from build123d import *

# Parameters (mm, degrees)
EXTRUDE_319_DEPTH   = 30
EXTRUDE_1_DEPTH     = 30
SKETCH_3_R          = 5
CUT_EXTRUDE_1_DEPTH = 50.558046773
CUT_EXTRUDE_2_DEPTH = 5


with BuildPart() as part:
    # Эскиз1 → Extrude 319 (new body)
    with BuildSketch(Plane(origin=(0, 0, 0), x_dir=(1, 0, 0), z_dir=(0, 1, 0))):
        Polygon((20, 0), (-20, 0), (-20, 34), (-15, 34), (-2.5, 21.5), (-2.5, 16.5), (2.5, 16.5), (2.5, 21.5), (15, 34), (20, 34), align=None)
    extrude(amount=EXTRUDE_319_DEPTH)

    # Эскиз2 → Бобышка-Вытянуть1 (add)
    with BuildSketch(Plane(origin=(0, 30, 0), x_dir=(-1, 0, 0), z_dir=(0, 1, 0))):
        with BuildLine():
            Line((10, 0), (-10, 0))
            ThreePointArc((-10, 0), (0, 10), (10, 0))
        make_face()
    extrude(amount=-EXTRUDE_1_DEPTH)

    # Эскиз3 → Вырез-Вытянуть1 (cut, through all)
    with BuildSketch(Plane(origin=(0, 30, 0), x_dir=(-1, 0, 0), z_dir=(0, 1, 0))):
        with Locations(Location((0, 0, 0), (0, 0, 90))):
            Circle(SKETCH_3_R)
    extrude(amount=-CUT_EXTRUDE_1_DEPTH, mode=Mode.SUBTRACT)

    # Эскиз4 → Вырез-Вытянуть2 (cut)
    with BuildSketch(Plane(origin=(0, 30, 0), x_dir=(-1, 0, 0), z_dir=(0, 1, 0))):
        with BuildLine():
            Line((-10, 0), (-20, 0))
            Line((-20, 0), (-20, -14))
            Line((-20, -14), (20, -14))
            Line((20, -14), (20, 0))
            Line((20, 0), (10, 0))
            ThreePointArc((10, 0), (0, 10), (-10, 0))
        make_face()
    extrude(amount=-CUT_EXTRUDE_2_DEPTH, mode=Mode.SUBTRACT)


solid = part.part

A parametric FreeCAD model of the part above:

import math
import FreeCAD as App
import Part
import Sketcher

V = App.Vector
Q = App.Units.Quantity


def add_polygon(sketch, points):
    """Adds a closed chain of lines whose ends are joined by coincident constraints."""
    first, n = sketch.GeometryCount, len(points)
    for a, b in zip(points, points[1:] + points[:1]):
        sketch.addGeometry(Part.LineSegment(App.Vector(*a, 0), App.Vector(*b, 0)), False)
    for i in range(n):
        sketch.addConstraint(Sketcher.Constraint("Coincident", first + i, 2, first + (i + 1) % n, 1))

doc = App.newDocument("Part")
params = doc.addObject("Spreadsheet::Sheet", "Params")
for row, (alias, value) in enumerate([
    ("sketch1_width", "40 mm"),
    ("sketch1_width2", "5 mm"),
    ("sketch1_height", "34 mm"),
    ("pad1_length", "30 mm"),
    ("sketch2_radius", "10 mm"),
    ("pad2_length", "30 mm"),
    ("sketch3_diameter", "10 mm"),
    ("sketch4_radius", "10 mm"),
    ("sketch4_width", "10 mm"),
    ("sketch4_height", "14 mm"),
    ("pocket2_length", "5 mm"),
], start=1):
    params.set(f"A{row}", alias)
    params.set(f"B{row}", "=" + value)
    params.setAlias(f"B{row}", alias)

body = doc.addObject("PartDesign::Body", "Body")

# Sketch on XZ plane
sketch1 = body.newObject("Sketcher::SketchObject", "Sketch")
sketch1.AttachmentSupport = (doc.getObject("XZ_Plane"), [""])
sketch1.MapMode = "FlatFace"
add_polygon(sketch1, [(-20, 0), (20, 0), (20, -34), (15, -34), (2.5, -21.5), (2.5, -16.5), (-2.5, -16.5), (-2.5, -21.5), (-15, -34), (-20, -34)])  # lines 0-9
sketch1.addConstraint([
    Sketcher.Constraint("Horizontal", 0),
    Sketcher.Constraint("Vertical", 1),
    Sketcher.Constraint("Horizontal", 2),
    Sketcher.Constraint("Vertical", 4),
    Sketcher.Constraint("Horizontal", 5),
    Sketcher.Constraint("Vertical", 6),
    Sketcher.Constraint("Horizontal", 8),
    Sketcher.Constraint("Vertical", 9),
    Sketcher.Constraint("Symmetric", 0, 2, 9, 2, -1, 1),
    Sketcher.Constraint("Symmetric", 3, 2, 6, 2, -2),
    Sketcher.Constraint("Symmetric", 2, 2, 7, 2, -2),
    Sketcher.Constraint("Perpendicular", 3, 7),
    Sketcher.Constraint("Equal", 2, 5),
    Sketcher.Constraint("Equal", 8, 4),
    Sketcher.Constraint("DistanceX", 0, 1, 0, 2, Q("40 mm")),
    Sketcher.Constraint("DistanceX", 2, 2, 2, 1, Q("5 mm")),
    Sketcher.Constraint("DistanceY", 1, 2, 1, 1, Q("34 mm")),
])
sketch1.setExpression("Constraints[24]", "Params.sketch1_width")
sketch1.setExpression("Constraints[25]", "Params.sketch1_width2")
sketch1.setExpression("Constraints[26]", "Params.sketch1_height")
pad1 = body.newObject("PartDesign::Pad", "Pad")
pad1.Profile = sketch1
pad1.setExpression("Length", "Params.pad1_length")
pad1.Reversed = True

# Sketch on XZ plane
sketch2 = body.newObject("Sketcher::SketchObject", "Sketch001")
sketch2.AttachmentSupport = (doc.getObject("XZ_Plane"), [""])
sketch2.MapMode = "FlatFace"
sketch2.AttachmentOffset = App.Placement(V(0, 0, -30), App.Rotation())
sketch2.addGeometry([
    Part.LineSegment(V(10, 0, 0), V(-10, 0, 0)),
    Part.ArcOfCircle(Part.Circle(V(0, 0, 0), V(0, 0, 1), 10), math.radians(0), math.radians(180)),
], False)
sketch2.addConstraint([
    Sketcher.Constraint("Coincident", 0, 1, 1, 1),
    Sketcher.Constraint("Coincident", 1, 2, 0, 2),
    Sketcher.Constraint("Horizontal", 0),
    Sketcher.Constraint("Coincident", 1, 3, -1, 1),
    Sketcher.Constraint("PointOnObject", 0, 1, -1),
    Sketcher.Constraint("Radius", 1, Q("10 mm")),
])
sketch2.setExpression("Constraints[5]", "Params.sketch2_radius")
pad2 = body.newObject("PartDesign::Pad", "Pad001")
pad2.Profile = sketch2
pad2.setExpression("Length", "Params.pad2_length")

# Sketch on XZ plane
sketch3 = body.newObject("Sketcher::SketchObject", "Sketch002")
sketch3.AttachmentSupport = (doc.getObject("XZ_Plane"), [""])
sketch3.MapMode = "FlatFace"
sketch3.AttachmentOffset = App.Placement(V(0, 0, -30), App.Rotation())
sketch3.addGeometry(Part.Circle(V(0, 0, 0), V(0, 0, 1), 5), False)
sketch3.addConstraint([
    Sketcher.Constraint("Coincident", 0, 3, -1, 1),
    Sketcher.Constraint("Diameter", 0, Q("10 mm")),
])
sketch3.setExpression("Constraints[1]", "Params.sketch3_diameter")
pocket1 = body.newObject("PartDesign::Pocket", "Pocket")
pocket1.Profile = sketch3
pocket1.Type = "ThroughAll"
pocket1.Reversed = True

# Sketch on XZ plane
sketch4 = body.newObject("Sketcher::SketchObject", "Sketch003")
sketch4.AttachmentSupport = (doc.getObject("XZ_Plane"), [""])
sketch4.MapMode = "FlatFace"
sketch4.AttachmentOffset = App.Placement(V(0, 0, -30), App.Rotation())
sketch4.addGeometry([
    Part.LineSegment(V(10, 0, 0), V(20, 0, 0)),  # 0
    Part.LineSegment(V(20, 0, 0), V(20, -14, 0)),  # 1
    Part.LineSegment(V(20, -14, 0), V(-20, -14, 0)),  # 2
    Part.LineSegment(V(-20, -14, 0), V(-20, 0, 0)),  # 3
    Part.LineSegment(V(-20, 0, 0), V(-10, 0, 0)),  # 4
    Part.ArcOfCircle(Part.Circle(V(0, 0, 0), V(0, 0, 1), 10), math.radians(0), math.radians(180)),  # 5
], False)
sketch4.addConstraint([
    Sketcher.Constraint("Coincident", 0, 2, 1, 1),
    Sketcher.Constraint("Coincident", 1, 2, 2, 1),
    Sketcher.Constraint("Coincident", 2, 2, 3, 1),
    Sketcher.Constraint("Coincident", 3, 2, 4, 1),
    Sketcher.Constraint("Coincident", 4, 2, 5, 2),
    Sketcher.Constraint("Coincident", 5, 1, 0, 1),
    Sketcher.Constraint("Horizontal", 0),
    Sketcher.Constraint("Vertical", 1),
    Sketcher.Constraint("Horizontal", 2),
    Sketcher.Constraint("Vertical", 3),
    Sketcher.Constraint("Horizontal", 4),
    Sketcher.Constraint("Coincident", 5, 3, -1, 1),
    Sketcher.Constraint("Symmetric", 0, 2, 3, 2, -1, 1),
    Sketcher.Constraint("PointOnObject", 0, 2, -1),
    Sketcher.Constraint("Radius", 5, Q("10 mm")),
    Sketcher.Constraint("DistanceX", 0, 1, 0, 2, Q("10 mm")),
    Sketcher.Constraint("DistanceY", 1, 2, 1, 1, Q("14 mm")),
])
sketch4.setExpression("Constraints[14]", "Params.sketch4_radius")
sketch4.setExpression("Constraints[15]", "Params.sketch4_width")
sketch4.setExpression("Constraints[16]", "Params.sketch4_height")
pocket2 = body.newObject("PartDesign::Pocket", "Pocket001")
pocket2.Profile = sketch4
pocket2.setExpression("Length", "Params.pocket2_length")
pocket2.Reversed = True

doc.recompute()
